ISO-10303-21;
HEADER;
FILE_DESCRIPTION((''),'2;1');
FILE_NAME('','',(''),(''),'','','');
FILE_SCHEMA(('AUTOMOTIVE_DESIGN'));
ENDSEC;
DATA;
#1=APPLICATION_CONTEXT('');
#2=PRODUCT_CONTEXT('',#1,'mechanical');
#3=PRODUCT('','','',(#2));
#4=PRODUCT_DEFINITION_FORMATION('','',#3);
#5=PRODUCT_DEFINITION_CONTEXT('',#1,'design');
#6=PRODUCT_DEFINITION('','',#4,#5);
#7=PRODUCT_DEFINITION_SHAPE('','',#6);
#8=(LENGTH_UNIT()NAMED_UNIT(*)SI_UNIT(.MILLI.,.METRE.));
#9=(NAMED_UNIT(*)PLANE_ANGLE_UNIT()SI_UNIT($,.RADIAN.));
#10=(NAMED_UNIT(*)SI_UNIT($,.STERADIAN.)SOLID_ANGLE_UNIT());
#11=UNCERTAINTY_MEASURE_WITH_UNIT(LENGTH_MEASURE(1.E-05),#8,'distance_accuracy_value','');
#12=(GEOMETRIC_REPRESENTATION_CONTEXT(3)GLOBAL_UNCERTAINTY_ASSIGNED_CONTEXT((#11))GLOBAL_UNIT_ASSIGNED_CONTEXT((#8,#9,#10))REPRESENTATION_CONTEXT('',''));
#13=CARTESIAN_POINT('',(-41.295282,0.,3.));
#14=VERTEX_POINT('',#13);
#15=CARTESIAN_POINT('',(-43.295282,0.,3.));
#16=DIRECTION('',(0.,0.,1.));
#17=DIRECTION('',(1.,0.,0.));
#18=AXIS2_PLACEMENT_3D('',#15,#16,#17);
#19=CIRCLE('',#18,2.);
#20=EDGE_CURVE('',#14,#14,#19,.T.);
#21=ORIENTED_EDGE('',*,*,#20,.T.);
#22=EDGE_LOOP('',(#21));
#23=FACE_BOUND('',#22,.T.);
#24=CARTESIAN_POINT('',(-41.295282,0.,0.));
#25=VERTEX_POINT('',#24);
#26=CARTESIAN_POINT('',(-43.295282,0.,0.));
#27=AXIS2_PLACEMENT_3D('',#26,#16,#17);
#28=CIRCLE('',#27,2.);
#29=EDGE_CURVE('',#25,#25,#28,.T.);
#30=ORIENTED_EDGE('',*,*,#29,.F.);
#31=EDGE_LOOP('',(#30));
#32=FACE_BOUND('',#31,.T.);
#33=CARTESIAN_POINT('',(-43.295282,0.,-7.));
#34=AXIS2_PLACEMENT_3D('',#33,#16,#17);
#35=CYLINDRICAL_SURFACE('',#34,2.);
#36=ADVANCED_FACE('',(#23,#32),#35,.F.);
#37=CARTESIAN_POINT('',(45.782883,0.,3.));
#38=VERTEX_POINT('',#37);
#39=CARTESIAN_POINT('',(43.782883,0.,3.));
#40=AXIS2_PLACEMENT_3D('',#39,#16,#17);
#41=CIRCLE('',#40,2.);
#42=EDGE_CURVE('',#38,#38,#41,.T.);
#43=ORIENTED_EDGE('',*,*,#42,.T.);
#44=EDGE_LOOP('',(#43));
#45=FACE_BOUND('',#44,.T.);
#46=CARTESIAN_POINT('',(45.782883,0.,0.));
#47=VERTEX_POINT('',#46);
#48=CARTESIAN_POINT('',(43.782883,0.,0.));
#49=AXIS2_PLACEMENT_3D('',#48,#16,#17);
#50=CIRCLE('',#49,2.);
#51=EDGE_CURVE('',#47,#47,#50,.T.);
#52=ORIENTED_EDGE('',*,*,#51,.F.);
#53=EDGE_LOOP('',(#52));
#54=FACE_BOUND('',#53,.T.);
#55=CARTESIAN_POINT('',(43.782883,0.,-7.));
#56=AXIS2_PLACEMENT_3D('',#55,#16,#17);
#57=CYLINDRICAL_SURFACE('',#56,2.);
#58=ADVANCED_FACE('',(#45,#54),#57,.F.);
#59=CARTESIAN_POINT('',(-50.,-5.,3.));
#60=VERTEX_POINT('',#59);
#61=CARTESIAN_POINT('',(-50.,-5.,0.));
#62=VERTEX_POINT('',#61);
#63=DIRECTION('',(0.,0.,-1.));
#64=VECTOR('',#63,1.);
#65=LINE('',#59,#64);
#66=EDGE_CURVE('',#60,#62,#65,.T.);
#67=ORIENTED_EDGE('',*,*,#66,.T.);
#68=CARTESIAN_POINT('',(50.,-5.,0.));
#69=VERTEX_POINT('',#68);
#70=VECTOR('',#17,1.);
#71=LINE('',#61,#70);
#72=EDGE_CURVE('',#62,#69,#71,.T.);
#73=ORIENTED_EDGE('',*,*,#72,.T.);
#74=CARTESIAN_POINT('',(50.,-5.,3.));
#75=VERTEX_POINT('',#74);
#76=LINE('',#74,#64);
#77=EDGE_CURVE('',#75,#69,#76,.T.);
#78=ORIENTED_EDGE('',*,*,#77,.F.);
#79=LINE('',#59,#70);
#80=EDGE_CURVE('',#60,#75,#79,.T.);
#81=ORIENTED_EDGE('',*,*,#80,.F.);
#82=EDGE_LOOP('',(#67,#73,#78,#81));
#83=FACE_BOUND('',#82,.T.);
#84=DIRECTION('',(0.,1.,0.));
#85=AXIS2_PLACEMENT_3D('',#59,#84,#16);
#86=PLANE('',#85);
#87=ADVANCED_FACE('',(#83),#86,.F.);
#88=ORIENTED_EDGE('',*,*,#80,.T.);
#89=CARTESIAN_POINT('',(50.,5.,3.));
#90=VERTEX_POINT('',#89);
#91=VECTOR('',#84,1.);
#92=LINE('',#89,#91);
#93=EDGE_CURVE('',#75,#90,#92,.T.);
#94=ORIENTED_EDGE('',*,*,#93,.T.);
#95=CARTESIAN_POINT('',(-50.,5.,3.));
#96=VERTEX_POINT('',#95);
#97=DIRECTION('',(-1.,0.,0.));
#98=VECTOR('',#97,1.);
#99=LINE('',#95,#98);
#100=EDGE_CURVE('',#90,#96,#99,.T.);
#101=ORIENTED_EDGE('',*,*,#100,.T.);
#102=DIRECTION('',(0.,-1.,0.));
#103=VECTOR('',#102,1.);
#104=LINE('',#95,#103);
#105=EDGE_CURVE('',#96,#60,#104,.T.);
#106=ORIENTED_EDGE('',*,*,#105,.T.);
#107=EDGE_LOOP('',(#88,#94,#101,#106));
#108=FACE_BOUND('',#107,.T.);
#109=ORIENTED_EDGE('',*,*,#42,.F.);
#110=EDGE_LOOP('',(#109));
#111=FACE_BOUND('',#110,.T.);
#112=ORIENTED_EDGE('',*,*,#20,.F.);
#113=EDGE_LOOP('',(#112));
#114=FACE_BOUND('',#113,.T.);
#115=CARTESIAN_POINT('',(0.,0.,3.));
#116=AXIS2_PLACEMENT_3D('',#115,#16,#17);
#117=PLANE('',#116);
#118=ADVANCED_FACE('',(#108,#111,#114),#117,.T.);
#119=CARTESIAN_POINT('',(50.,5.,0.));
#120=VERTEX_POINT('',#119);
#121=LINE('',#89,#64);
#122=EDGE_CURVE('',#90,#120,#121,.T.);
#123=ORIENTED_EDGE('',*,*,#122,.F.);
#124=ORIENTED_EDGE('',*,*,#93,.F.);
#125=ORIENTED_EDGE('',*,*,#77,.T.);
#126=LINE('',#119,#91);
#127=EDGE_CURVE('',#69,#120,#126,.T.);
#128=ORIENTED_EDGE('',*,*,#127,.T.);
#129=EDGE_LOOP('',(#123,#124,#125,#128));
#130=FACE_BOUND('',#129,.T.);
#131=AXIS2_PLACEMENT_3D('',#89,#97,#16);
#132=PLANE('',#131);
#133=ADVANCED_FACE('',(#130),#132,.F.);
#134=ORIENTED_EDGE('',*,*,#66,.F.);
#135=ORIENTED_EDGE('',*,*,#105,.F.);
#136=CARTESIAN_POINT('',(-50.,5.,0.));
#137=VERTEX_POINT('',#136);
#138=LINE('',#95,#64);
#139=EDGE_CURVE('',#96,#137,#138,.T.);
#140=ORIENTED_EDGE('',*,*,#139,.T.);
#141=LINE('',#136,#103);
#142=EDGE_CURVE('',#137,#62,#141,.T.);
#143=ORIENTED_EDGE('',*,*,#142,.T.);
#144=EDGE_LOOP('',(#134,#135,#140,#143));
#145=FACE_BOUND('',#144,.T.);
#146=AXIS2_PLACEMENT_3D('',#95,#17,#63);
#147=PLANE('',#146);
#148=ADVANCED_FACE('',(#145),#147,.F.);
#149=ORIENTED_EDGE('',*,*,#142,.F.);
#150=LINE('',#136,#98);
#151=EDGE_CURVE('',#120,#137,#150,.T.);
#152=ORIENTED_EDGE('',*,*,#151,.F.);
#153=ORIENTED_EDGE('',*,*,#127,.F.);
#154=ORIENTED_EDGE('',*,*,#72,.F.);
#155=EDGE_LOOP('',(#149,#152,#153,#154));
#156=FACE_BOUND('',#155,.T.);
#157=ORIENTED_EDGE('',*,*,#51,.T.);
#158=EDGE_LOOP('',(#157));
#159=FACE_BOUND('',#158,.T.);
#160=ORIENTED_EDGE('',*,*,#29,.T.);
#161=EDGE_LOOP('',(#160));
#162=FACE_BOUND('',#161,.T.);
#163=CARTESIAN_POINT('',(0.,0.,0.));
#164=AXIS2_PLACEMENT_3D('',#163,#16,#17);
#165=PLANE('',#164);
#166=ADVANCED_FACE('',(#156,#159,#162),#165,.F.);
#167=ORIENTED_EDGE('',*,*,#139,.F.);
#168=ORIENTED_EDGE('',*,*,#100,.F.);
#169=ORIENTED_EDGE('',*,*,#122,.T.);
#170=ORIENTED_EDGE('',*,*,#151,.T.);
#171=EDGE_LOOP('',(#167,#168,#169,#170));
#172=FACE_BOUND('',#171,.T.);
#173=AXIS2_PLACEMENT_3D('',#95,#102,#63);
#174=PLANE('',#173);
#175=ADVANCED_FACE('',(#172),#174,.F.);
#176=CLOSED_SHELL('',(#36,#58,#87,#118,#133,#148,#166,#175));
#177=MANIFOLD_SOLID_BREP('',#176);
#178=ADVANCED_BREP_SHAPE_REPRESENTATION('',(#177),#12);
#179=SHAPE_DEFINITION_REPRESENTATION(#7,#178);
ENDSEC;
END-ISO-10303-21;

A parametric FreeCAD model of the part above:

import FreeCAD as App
import Part
import Sketcher
from FreeCAD import Vector

doc = App.newDocument("Part")
params = doc.addObject("Spreadsheet::Sheet", "Params")
for row, (alias, value) in enumerate([
    ("sketch1_width", "100 mm"),
    ("sketch1_height", "10 mm"),
    ("pad1_length", "3 mm"),
    ("sketch2_diameter", "4 mm"),
    ("pocket1_length", "10 mm"),
], start=1):
    params.set(f"A{row}", alias)
    params.set(f"B{row}", "=" + value)
    params.setAlias(f"B{row}", alias)

body = doc.addObject("PartDesign::Body", "Body")

# Sketch on XY plane
sketch1 = body.newObject("Sketcher::SketchObject", "Sketch")
sketch1.AttachmentSupport = (doc.getObject("XY_Plane"), [""])
sketch1.MapMode = "FlatFace"
sketch1.addGeometry([
    Part.LineSegment(Vector(-50, 5, 0), Vector(-50, -5, 0)),
    Part.LineSegment(Vector(-50, -5, 0), Vector(50, -5, 0)),
    Part.LineSegment(Vector(50, -5, 0), Vector(50, 5, 0)),
    Part.LineSegment(Vector(50, 5, 0), Vector(-50, 5, 0)),
], False)
sketch1.addConstraint([
    Sketcher.Constraint("Coincident", 0, 2, 1, 1),
    Sketcher.Constraint("Coincident", 1, 2, 2, 1),
    Sketcher.Constraint("Coincident", 2, 2, 3, 1),
    Sketcher.Constraint("Coincident", 3, 2, 0, 1),
    Sketcher.Constraint("Vertical", 0),
    Sketcher.Constraint("Horizontal", 1),
    Sketcher.Constraint("Vertical", 2),
    Sketcher.Constraint("Horizontal", 3),
    Sketcher.Constraint("Symmetric", 0, 2, 2, 2, -1, 1),
    Sketcher.Constraint("DistanceX", 1, 1, 1, 2, 100.0),
    Sketcher.Constraint("DistanceY", 0, 2, 0, 1, 10.0),
])
sketch1.setExpression("Constraints[9]", "Params.sketch1_width")
sketch1.setExpression("Constraints[10]", "Params.sketch1_height")
pad1 = body.newObject("PartDesign::Pad", "Pad")
pad1.Profile = sketch1
pad1.setExpression("Length", "Params.pad1_length")

# Sketch on XY plane
sketch2 = body.newObject("Sketcher::SketchObject", "Sketch001")
sketch2.AttachmentSupport = (doc.getObject("XY_Plane"), [""])
sketch2.MapMode = "FlatFace"
sketch2.AttachmentOffset = App.Placement(Vector(0, 0, 3), App.Rotation())
sketch2.addGeometry([
    Part.Circle(Vector(-43.3, 0, 0), Vector(0, 0, 1), 2),
    Part.Circle(Vector(43.8, 0, 0), Vector(0, 0, 1), 2),
], False)
sketch2.addConstraint([
    Sketcher.Constraint("Equal", 0, 1),
    Sketcher.Constraint("PointOnObject", 0, 3, -1),
    Sketcher.Constraint("PointOnObject", 1, 3, -1),
    Sketcher.Constraint("Diameter", 0, 4.0),
    Sketcher.Constraint("DistanceX", 0, 3, -1, 1, 43.295282),
    Sketcher.Constraint("DistanceX", -1, 1, 1, 3, 43.782883),
])
sketch2.setExpression("Constraints[3]", "Params.sketch2_diameter")
pocket1 = body.newObject("PartDesign::Pocket", "Pocket")
pocket1.Profile = sketch2
pocket1.setExpression("Length", "Params.pocket1_length")

doc.recompute()
